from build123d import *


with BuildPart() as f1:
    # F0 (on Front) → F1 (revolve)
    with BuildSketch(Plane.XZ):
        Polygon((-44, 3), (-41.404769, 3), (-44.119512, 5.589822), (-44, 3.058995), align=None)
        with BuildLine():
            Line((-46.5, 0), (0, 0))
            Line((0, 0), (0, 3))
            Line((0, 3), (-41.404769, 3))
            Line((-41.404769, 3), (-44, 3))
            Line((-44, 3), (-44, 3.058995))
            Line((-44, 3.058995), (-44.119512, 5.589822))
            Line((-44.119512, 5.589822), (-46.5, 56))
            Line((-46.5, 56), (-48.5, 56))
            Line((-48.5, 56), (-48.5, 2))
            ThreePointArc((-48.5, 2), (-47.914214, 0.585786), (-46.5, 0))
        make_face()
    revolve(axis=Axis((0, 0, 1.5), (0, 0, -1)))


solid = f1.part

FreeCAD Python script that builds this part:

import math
import FreeCAD as App
import Part
import Sketcher

doc = App.newDocument("Part")
body = doc.addObject("PartDesign::Body", "Body")

# Sketch on XZ plane
sketch1 = body.newObject("Sketcher::SketchObject", "Sketch")
sketch1.AttachmentSupport = (doc.getObject("XZ_Plane"), [""])
sketch1.MapMode = "FlatFace"
sketch1.addGeometry([
    Part.LineSegment(App.Vector(-41.4, 3, 0), App.Vector(-44.1, 5.6, 0)),  # 0
    Part.LineSegment(App.Vector(-44.1, 5.6, 0), App.Vector(-46.5, 56, 0)),  # 1
    Part.LineSegment(App.Vector(-46.5, 56, 0), App.Vector(-48.5, 56, 0)),  # 2
    Part.LineSegment(App.Vector(-48.5, 56, 0), App.Vector(-48.5, 2, 0)),  # 3
    Part.ArcOfCircle(Part.Circle(App.Vector(-46.5, 2, 0), App.Vector(0, 0, 1), 2), math.radians(180), math.radians(270)),  # 4
    Part.LineSegment(App.Vector(-46.5, 0, 0), App.Vector(0, 0, 0)),  # 5
    Part.LineSegment(App.Vector(0, 0, 0), App.Vector(0, 3, 0)),  # 6
    Part.LineSegment(App.Vector(0, 3, 0), App.Vector(-41.4, 3, 0)),  # 7
], False)
sketch1.addConstraint([
    Sketcher.Constraint("Coincident", 0, 2, 1, 1),
    Sketcher.Constraint("Coincident", 1, 2, 2, 1),
    Sketcher.Constraint("Coincident", 2, 2, 3, 1),
    Sketcher.Constraint("Tangent", 3, 2, 4, 1),
    Sketcher.Constraint("Tangent", 4, 2, 5, 1),
    Sketcher.Constraint("Coincident", 5, 2, 6, 1),
    Sketcher.Constraint("Coincident", 6, 2, 7, 1),
    Sketcher.Constraint("Coincident", 7, 2, 0, 1),
    Sketcher.Constraint("Horizontal", 2),
    Sketcher.Constraint("Vertical", 3),
    Sketcher.Constraint("Horizontal", 5),
    Sketcher.Constraint("Vertical", 6),
    Sketcher.Constraint("Horizontal", 7),
    Sketcher.Constraint("Coincident", 5, 2, -1, 1),
    Sketcher.Constraint("Vertical", 4, 3, 1, 2),
    Sketcher.Constraint("Radius", 4, 1.999999),
    Sketcher.Constraint("DistanceY", 3, 2, 3, 1, 54.0),
    Sketcher.Constraint("DistanceY", 6, 1, 6, 2, 3.0),
    Sketcher.Constraint("DistanceX", 5, 1, 5, 2, 46.5),
    Sketcher.Constraint("DistanceX", 7, 2, 7, 1, 41.404769),
    Sketcher.Constraint("DistanceX", 4, 3, 0, 2, 2.380489),
    Sketcher.Constraint("DistanceY", 0, 2, 1, 2, 50.410178),
])
revolution = body.newObject("PartDesign::Revolution", "Revolution")
revolution.Profile = sketch1
revolution.ReferenceAxis = (sketch1, ["V_Axis"])
revolution.Angle = 360

doc.recompute()
